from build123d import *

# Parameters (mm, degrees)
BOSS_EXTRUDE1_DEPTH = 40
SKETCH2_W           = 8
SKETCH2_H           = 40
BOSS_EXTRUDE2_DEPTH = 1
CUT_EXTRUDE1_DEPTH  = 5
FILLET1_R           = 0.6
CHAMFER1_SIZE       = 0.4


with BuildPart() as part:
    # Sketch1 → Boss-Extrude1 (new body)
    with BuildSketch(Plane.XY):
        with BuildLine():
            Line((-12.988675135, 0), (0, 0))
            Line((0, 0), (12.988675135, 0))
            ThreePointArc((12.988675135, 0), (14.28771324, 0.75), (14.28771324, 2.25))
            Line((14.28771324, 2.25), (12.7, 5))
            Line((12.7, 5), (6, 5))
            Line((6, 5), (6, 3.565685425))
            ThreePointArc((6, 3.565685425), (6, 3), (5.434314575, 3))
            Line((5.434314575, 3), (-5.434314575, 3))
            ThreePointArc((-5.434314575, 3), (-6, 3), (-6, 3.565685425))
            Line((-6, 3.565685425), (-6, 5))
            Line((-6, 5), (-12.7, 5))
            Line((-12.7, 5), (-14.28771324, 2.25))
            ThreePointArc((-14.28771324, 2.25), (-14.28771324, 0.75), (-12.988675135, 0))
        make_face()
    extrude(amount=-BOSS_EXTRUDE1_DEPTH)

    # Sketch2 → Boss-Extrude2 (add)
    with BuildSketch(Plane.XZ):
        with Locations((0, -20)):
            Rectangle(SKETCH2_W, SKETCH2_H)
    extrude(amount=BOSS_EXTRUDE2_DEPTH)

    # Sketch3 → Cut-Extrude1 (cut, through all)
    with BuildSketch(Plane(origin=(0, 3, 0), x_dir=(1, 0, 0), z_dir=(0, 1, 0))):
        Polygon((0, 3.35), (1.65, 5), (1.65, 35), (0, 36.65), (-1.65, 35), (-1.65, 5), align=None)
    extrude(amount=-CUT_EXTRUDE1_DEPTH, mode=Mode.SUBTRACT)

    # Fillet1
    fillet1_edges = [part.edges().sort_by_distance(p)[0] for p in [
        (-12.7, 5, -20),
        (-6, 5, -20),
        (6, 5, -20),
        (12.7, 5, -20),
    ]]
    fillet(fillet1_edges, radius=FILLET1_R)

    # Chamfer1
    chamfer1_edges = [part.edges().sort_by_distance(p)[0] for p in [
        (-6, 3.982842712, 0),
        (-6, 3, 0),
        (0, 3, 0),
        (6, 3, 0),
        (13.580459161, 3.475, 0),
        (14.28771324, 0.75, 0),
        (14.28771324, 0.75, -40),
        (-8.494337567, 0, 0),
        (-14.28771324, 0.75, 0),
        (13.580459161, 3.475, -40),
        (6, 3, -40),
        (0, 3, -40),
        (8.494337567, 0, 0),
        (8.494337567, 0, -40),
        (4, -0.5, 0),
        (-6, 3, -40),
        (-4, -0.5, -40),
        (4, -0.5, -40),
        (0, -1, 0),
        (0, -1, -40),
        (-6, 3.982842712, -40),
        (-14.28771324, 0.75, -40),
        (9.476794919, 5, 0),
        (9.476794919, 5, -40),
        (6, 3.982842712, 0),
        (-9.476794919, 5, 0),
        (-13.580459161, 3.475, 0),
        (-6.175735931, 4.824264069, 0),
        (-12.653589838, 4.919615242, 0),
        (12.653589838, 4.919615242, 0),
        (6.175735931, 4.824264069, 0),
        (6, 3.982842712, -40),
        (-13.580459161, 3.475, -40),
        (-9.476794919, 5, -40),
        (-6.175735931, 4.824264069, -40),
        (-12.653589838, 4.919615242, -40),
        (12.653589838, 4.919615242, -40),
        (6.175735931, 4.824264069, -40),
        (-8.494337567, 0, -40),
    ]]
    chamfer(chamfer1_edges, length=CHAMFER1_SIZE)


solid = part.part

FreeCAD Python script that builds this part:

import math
import FreeCAD as App
import Part
import Sketcher

V = App.Vector
Q = App.Units.Quantity


def edges_at(feature, points):
    """Names of the edges that pass closest to the given points."""
    edges = feature.Shape.Edges
    near = lambda p: min(range(len(edges)), key=lambda i: edges[i].distToShape(Part.Vertex(*p))[0])
    return sorted({f"Edge{near(p) + 1}" for p in points})


def add_polygon(sketch, points):
    """Adds a closed chain of lines whose ends are joined by coincident constraints."""
    first, n = sketch.GeometryCount, len(points)
    for a, b in zip(points, points[1:] + points[:1]):
        sketch.addGeometry(Part.LineSegment(App.Vector(*a, 0), App.Vector(*b, 0)), False)
    for i in range(n):
        sketch.addConstraint(Sketcher.Constraint("Coincident", first + i, 2, first + (i + 1) % n, 1))

doc = App.newDocument("Part")
body = doc.addObject("PartDesign::Body", "Body")

sketch1 = body.newObject("Sketcher::SketchObject", "Sketch")
sketch1.AttachmentSupport = (doc.getObject("XY_Plane"), [""])
sketch1.MapMode = "FlatFace"
sketch1.addGeometry([
    Part.LineSegment(V(-12.99, 0, 0), V(12.99, 0, 0)),
    Part.ArcOfCircle(Part.Circle(V(12.99, 1.5, 0), V(0, 0, 1), 1.5), math.radians(-90), math.radians(30)),
    Part.LineSegment(V(14.29, 2.25, 0), V(12.7, 5, 0)),
    Part.LineSegment(V(12.7, 5, 0), V(6, 5, 0)),
    Part.LineSegment(V(6, 5, 0), V(6, 3.57, 0)),
    Part.ArcOfCircle(Part.Circle(V(5.72, 3.28, 0), V(0, 0, 1), 0.4), math.radians(-135), math.radians(45)),
    Part.LineSegment(V(5.43, 3, 0), V(-5.43, 3, 0)),
    Part.ArcOfCircle(Part.Circle(V(-5.72, 3.28, 0), V(0, 0, 1), 0.4), math.radians(135), math.radians(315)),
    Part.LineSegment(V(-6, 3.57, 0), V(-6, 5, 0)),
    Part.LineSegment(V(-6, 5, 0), V(-12.7, 5, 0)),
    Part.LineSegment(V(-12.7, 5, 0), V(-14.29, 2.25, 0)),
    Part.ArcOfCircle(Part.Circle(V(-12.99, 1.5, 0), V(0, 0, 1), 1.5), math.radians(150), math.radians(270)),
], False)
sketch1.addConstraint([
    Sketcher.Constraint("Tangent", 0, 2, 1, 1),
    Sketcher.Constraint("Tangent", 1, 2, 2, 1),
    Sketcher.Constraint("Coincident", 2, 2, 3, 1),
    Sketcher.Constraint("Coincident", 3, 2, 4, 1),
    Sketcher.Constraint("Coincident", 4, 2, 5, 2),
    Sketcher.Constraint("Coincident", 5, 1, 6, 1),
    Sketcher.Constraint("Coincident", 6, 2, 7, 2),
    Sketcher.Constraint("Coincident", 7, 1, 8, 1),
    Sketcher.Constraint("Coincident", 8, 2, 9, 1),
    Sketcher.Constraint("Coincident", 9, 2, 10, 1),
    Sketcher.Constraint("Tangent", 10, 2, 11, 1),
    Sketcher.Constraint("Tangent", 11, 2, 0, 1),
    Sketcher.Constraint("Horizontal", 0),
    Sketcher.Constraint("Horizontal", 3),
    Sketcher.Constraint("Vertical", 4),
    Sketcher.Constraint("Horizontal", 6),
    Sketcher.Constraint("Vertical", 8),
    Sketcher.Constraint("Horizontal", 9),
    Sketcher.Constraint("Equal", 5, 7),
    Sketcher.Constraint("Equal", 1, 11),
    Sketcher.Constraint("Symmetric", 0, 2, 11, 2, -1, 1),
    Sketcher.Constraint("Symmetric", 5, 3, 7, 3, -2),
    Sketcher.Constraint("Symmetric", 3, 2, 8, 2, -2),
    Sketcher.Constraint("Horizontal", 1, 2, 10, 2),
    Sketcher.Constraint("Radius", 1, 1.5),
    Sketcher.Constraint("Radius", 5, 0.4),
    Sketcher.Constraint("Angle", 2, Q("120 deg")),
    Sketcher.Constraint("DistanceX", 3, 2, 3, 1, 6.7),
    Sketcher.Constraint("DistanceY", -1, 1, 2, 2, 5.0),
    Sketcher.Constraint("DistanceX", -1, 1, 3, 2, 6.0),
    Sketcher.Constraint("DistanceY", -1, 1, 5, 1, 3.0),
    Sketcher.Constraint("DistanceX", 6, 2, 6, 1, 10.868629),
    Sketcher.Constraint("DistanceX", 7, 3, 1, 2, 20.004871),
])
pad1 = body.newObject("PartDesign::Pad", "Pad")
pad1.Profile = sketch1
pad1.Length = 40
pad1.Reversed = True

sketch2 = body.newObject("Sketcher::SketchObject", "Sketch001")
sketch2.AttachmentSupport = (doc.getObject("XZ_Plane"), [""])
sketch2.MapMode = "FlatFace"
add_polygon(sketch2, [(-4, 0), (-4, -40), (4, -40), (4, 0)])
sketch2.addConstraint([
    Sketcher.Constraint("Vertical", 0),
    Sketcher.Constraint("Horizontal", 1),
    Sketcher.Constraint("Vertical", 2),
    Sketcher.Constraint("Horizontal", 3),
    Sketcher.Constraint("Symmetric", 2, 2, 3, 2, -1, 1),
    Sketcher.Constraint("DistanceX", 1, 1, 1, 2, 8.0),
    Sketcher.Constraint("DistanceY", 0, 2, 0, 1, 40.0),
])
pad2 = body.newObject("PartDesign::Pad", "Pad001")
pad2.Profile = sketch2
pad2.Length = 1

sketch3 = body.newObject("Sketcher::SketchObject", "Sketch002")
sketch3.AttachmentSupport = (doc.getObject("XZ_Plane"), [""])
sketch3.MapMode = "FlatFace"
sketch3.AttachmentOffset = App.Placement(V(0, 0, -3), App.Rotation())
add_polygon(sketch3, [(0, -3.4), (1.6, -5), (1.6, -35), (0, -36.6), (-1.6, -35), (-1.6, -5)])
sketch3.addConstraint([
    Sketcher.Constraint("Vertical", 1),
    Sketcher.Constraint("Vertical", 4),
    Sketcher.Constraint("Symmetric", 1, 2, 3, 2, -2),
    Sketcher.Constraint("PointOnObject", 2, 2, -2),
    Sketcher.Constraint("PointOnObject", 5, 2, -2),
    Sketcher.Constraint("Perpendicular", 0, 2),
    Sketcher.Constraint("Perpendicular", 2, 3),
    Sketcher.Constraint("Perpendicular", 3, 5),
    Sketcher.Constraint("DistanceY", 1, 2, 1, 1, 30.0),
    Sketcher.Constraint("DistanceY", 0, 2, -1, 1, 5.0),
    Sketcher.Constraint("DistanceX", 3, 2, 1, 2, 3.3),
])
pocket1 = body.newObject("PartDesign::Pocket", "Pocket")
pocket1.Profile = sketch3
pocket1.Type = "ThroughAll"
pocket1.Reversed = True
doc.recompute()

fillet = body.newObject("PartDesign::Fillet", "Fillet")
fillet.Base = (pocket1, edges_at(pocket1, [
    (-12.7, 5, -20),
    (-6, 5, -20),
    (6, 5, -20),
    (12.7, 5, -20),
]))
fillet.Radius = 0.6
doc.recompute()

chamfer = body.newObject("PartDesign::Chamfer", "Chamfer")
chamfer.Base = (fillet, edges_at(fillet, [
    (-6, 3.983, 0),
    (-6, 3, 0),
    (0, 3, 0),
    (6, 3, 0),
    (13.58, 3.475, 0),
    (14.288, 0.75, 0),
    (14.288, 0.75, -40),
    (-8.494, 0, 0),
    (-14.288, 0.75, 0),
    (13.58, 3.475, -40),
    (6, 3, -40),
    (0, 3, -40),
    (8.494, 0, 0),
    (8.494, 0, -40),
    (4, -0.5, 0),
    (-6, 3, -40),
    (-4, -0.5, -40),
    (4, -0.5, -40),
    (0, -1, 0),
    (0, -1, -40),
    (-6, 3.983, -40),
    (-14.288, 0.75, -40),
    (9.477, 5, 0),
    (9.477, 5, -40),
    (6, 3.983, 0),
    (-9.477, 5, 0),
    (-13.58, 3.475, 0),
    (-6.176, 4.824, 0),
    (-12.654, 4.92, 0),
    (12.654, 4.92, 0),
    (6.176, 4.824, 0),
    (6, 3.983, -40),
    (-13.58, 3.475, -40),
    (-9.477, 5, -40),
    (-6.176, 4.824, -40),
    (-12.654, 4.92, -40),
    (12.654, 4.92, -40),
    (6.176, 4.824, -40),
    (-8.494, 0, -40),
]))
chamfer.Size = 0.4

doc.recompute()
